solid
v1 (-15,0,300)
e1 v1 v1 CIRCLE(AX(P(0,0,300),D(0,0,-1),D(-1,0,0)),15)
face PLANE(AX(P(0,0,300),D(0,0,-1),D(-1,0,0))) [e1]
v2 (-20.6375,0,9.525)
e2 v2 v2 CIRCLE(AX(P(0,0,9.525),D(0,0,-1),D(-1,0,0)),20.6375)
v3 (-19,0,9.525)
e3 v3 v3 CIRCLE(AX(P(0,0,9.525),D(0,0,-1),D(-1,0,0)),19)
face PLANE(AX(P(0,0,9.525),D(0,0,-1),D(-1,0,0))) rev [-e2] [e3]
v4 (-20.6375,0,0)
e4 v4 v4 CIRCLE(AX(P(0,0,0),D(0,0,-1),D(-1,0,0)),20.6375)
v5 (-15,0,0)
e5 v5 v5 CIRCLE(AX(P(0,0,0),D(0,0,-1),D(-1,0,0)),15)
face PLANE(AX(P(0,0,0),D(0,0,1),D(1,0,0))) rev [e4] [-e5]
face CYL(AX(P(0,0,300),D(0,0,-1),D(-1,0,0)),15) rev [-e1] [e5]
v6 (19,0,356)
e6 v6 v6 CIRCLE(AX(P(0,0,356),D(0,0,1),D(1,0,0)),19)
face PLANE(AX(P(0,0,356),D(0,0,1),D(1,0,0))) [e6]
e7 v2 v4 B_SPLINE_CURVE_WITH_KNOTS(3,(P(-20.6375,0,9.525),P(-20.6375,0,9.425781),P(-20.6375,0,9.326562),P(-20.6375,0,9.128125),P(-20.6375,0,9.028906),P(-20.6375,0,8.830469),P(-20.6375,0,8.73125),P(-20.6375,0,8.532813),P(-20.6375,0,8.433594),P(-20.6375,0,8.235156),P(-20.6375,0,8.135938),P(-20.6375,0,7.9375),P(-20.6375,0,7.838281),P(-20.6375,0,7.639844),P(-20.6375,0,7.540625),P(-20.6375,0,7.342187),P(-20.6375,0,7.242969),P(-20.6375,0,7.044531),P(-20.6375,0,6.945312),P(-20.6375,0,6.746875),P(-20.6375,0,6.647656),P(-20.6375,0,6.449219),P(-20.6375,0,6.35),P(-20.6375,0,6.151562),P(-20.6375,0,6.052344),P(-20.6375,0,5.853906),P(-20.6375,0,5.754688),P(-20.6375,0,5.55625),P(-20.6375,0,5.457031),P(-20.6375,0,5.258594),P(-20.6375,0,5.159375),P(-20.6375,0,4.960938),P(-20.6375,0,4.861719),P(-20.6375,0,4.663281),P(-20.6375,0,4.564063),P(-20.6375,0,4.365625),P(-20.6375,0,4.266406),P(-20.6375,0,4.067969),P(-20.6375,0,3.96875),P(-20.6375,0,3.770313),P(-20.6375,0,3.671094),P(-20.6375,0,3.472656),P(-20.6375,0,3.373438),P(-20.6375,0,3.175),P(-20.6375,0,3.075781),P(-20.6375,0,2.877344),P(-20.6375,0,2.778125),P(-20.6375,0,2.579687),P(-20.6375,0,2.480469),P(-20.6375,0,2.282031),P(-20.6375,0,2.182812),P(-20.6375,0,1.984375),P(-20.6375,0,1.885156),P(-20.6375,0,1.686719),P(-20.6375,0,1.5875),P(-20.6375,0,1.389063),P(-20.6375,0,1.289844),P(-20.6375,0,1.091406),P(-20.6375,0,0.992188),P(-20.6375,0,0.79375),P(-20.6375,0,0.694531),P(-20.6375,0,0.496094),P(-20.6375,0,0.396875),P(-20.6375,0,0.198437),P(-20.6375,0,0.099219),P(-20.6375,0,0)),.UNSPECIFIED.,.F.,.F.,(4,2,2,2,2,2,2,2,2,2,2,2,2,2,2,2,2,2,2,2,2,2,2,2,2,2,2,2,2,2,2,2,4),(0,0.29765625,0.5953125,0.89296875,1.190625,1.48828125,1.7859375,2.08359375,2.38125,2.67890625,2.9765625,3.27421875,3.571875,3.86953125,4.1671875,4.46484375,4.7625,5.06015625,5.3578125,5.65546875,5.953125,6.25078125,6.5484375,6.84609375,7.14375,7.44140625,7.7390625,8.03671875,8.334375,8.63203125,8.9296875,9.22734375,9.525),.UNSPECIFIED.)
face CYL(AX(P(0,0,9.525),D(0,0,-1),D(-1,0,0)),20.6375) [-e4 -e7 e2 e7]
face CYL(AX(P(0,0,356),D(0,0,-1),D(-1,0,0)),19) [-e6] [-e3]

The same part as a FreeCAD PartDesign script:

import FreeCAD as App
import Part
import Sketcher
Q = App.Units.Quantity

doc = App.newDocument("Part")
body = doc.addObject("PartDesign::Body", "Body")

# Sketch on XY plane
sketch1 = body.newObject("Sketcher::SketchObject", "Sketch")
sketch1.AttachmentSupport = (doc.getObject("XY_Plane"), [""])
sketch1.MapMode = "FlatFace"
sketch1.addGeometry(Part.Circle(App.Vector(0, 0, 0), App.Vector(0, 0, 1), 19), False)
sketch1.addConstraint(Sketcher.Constraint("Coincident", 0, 3, -1, 1))
sketch1.addConstraint(Sketcher.Constraint("Diameter", 0, Q("38 mm")))
pad1 = body.newObject("PartDesign::Pad", "Pad")
pad1.Profile = sketch1
pad1.Length = 356

# Sketch on XY plane
sketch2 = body.newObject("Sketcher::SketchObject", "Sketch001")
sketch2.AttachmentSupport = (doc.getObject("XY_Plane"), [""])
sketch2.MapMode = "FlatFace"
sketch2.addGeometry(Part.Circle(App.Vector(0, 0, 0), App.Vector(0, 0, 1), 21), False)
sketch2.addConstraint(Sketcher.Constraint("Coincident", 0, 3, -1, 1))
sketch2.addConstraint(Sketcher.Constraint("Diameter", 0, Q("41.275 mm")))
pad2 = body.newObject("PartDesign::Pad", "Pad001")
pad2.Profile = sketch2
pad2.Length = 9.525

# Sketch on XY plane
sketch3 = body.newObject("Sketcher::SketchObject", "Sketch002")
sketch3.AttachmentSupport = (doc.getObject("XY_Plane"), [""])
sketch3.MapMode = "FlatFace"
sketch3.addGeometry(Part.Circle(App.Vector(0, 0, 0), App.Vector(0, 0, 1), 15), False)
sketch3.addConstraint(Sketcher.Constraint("Coincident", 0, 3, -1, 1))
sketch3.addConstraint(Sketcher.Constraint("Diameter", 0, Q("30 mm")))
pocket1 = body.newObject("PartDesign::Pocket", "Pocket")
pocket1.Profile = sketch3
pocket1.Length = 300
pocket1.Reversed = True

doc.recompute()
